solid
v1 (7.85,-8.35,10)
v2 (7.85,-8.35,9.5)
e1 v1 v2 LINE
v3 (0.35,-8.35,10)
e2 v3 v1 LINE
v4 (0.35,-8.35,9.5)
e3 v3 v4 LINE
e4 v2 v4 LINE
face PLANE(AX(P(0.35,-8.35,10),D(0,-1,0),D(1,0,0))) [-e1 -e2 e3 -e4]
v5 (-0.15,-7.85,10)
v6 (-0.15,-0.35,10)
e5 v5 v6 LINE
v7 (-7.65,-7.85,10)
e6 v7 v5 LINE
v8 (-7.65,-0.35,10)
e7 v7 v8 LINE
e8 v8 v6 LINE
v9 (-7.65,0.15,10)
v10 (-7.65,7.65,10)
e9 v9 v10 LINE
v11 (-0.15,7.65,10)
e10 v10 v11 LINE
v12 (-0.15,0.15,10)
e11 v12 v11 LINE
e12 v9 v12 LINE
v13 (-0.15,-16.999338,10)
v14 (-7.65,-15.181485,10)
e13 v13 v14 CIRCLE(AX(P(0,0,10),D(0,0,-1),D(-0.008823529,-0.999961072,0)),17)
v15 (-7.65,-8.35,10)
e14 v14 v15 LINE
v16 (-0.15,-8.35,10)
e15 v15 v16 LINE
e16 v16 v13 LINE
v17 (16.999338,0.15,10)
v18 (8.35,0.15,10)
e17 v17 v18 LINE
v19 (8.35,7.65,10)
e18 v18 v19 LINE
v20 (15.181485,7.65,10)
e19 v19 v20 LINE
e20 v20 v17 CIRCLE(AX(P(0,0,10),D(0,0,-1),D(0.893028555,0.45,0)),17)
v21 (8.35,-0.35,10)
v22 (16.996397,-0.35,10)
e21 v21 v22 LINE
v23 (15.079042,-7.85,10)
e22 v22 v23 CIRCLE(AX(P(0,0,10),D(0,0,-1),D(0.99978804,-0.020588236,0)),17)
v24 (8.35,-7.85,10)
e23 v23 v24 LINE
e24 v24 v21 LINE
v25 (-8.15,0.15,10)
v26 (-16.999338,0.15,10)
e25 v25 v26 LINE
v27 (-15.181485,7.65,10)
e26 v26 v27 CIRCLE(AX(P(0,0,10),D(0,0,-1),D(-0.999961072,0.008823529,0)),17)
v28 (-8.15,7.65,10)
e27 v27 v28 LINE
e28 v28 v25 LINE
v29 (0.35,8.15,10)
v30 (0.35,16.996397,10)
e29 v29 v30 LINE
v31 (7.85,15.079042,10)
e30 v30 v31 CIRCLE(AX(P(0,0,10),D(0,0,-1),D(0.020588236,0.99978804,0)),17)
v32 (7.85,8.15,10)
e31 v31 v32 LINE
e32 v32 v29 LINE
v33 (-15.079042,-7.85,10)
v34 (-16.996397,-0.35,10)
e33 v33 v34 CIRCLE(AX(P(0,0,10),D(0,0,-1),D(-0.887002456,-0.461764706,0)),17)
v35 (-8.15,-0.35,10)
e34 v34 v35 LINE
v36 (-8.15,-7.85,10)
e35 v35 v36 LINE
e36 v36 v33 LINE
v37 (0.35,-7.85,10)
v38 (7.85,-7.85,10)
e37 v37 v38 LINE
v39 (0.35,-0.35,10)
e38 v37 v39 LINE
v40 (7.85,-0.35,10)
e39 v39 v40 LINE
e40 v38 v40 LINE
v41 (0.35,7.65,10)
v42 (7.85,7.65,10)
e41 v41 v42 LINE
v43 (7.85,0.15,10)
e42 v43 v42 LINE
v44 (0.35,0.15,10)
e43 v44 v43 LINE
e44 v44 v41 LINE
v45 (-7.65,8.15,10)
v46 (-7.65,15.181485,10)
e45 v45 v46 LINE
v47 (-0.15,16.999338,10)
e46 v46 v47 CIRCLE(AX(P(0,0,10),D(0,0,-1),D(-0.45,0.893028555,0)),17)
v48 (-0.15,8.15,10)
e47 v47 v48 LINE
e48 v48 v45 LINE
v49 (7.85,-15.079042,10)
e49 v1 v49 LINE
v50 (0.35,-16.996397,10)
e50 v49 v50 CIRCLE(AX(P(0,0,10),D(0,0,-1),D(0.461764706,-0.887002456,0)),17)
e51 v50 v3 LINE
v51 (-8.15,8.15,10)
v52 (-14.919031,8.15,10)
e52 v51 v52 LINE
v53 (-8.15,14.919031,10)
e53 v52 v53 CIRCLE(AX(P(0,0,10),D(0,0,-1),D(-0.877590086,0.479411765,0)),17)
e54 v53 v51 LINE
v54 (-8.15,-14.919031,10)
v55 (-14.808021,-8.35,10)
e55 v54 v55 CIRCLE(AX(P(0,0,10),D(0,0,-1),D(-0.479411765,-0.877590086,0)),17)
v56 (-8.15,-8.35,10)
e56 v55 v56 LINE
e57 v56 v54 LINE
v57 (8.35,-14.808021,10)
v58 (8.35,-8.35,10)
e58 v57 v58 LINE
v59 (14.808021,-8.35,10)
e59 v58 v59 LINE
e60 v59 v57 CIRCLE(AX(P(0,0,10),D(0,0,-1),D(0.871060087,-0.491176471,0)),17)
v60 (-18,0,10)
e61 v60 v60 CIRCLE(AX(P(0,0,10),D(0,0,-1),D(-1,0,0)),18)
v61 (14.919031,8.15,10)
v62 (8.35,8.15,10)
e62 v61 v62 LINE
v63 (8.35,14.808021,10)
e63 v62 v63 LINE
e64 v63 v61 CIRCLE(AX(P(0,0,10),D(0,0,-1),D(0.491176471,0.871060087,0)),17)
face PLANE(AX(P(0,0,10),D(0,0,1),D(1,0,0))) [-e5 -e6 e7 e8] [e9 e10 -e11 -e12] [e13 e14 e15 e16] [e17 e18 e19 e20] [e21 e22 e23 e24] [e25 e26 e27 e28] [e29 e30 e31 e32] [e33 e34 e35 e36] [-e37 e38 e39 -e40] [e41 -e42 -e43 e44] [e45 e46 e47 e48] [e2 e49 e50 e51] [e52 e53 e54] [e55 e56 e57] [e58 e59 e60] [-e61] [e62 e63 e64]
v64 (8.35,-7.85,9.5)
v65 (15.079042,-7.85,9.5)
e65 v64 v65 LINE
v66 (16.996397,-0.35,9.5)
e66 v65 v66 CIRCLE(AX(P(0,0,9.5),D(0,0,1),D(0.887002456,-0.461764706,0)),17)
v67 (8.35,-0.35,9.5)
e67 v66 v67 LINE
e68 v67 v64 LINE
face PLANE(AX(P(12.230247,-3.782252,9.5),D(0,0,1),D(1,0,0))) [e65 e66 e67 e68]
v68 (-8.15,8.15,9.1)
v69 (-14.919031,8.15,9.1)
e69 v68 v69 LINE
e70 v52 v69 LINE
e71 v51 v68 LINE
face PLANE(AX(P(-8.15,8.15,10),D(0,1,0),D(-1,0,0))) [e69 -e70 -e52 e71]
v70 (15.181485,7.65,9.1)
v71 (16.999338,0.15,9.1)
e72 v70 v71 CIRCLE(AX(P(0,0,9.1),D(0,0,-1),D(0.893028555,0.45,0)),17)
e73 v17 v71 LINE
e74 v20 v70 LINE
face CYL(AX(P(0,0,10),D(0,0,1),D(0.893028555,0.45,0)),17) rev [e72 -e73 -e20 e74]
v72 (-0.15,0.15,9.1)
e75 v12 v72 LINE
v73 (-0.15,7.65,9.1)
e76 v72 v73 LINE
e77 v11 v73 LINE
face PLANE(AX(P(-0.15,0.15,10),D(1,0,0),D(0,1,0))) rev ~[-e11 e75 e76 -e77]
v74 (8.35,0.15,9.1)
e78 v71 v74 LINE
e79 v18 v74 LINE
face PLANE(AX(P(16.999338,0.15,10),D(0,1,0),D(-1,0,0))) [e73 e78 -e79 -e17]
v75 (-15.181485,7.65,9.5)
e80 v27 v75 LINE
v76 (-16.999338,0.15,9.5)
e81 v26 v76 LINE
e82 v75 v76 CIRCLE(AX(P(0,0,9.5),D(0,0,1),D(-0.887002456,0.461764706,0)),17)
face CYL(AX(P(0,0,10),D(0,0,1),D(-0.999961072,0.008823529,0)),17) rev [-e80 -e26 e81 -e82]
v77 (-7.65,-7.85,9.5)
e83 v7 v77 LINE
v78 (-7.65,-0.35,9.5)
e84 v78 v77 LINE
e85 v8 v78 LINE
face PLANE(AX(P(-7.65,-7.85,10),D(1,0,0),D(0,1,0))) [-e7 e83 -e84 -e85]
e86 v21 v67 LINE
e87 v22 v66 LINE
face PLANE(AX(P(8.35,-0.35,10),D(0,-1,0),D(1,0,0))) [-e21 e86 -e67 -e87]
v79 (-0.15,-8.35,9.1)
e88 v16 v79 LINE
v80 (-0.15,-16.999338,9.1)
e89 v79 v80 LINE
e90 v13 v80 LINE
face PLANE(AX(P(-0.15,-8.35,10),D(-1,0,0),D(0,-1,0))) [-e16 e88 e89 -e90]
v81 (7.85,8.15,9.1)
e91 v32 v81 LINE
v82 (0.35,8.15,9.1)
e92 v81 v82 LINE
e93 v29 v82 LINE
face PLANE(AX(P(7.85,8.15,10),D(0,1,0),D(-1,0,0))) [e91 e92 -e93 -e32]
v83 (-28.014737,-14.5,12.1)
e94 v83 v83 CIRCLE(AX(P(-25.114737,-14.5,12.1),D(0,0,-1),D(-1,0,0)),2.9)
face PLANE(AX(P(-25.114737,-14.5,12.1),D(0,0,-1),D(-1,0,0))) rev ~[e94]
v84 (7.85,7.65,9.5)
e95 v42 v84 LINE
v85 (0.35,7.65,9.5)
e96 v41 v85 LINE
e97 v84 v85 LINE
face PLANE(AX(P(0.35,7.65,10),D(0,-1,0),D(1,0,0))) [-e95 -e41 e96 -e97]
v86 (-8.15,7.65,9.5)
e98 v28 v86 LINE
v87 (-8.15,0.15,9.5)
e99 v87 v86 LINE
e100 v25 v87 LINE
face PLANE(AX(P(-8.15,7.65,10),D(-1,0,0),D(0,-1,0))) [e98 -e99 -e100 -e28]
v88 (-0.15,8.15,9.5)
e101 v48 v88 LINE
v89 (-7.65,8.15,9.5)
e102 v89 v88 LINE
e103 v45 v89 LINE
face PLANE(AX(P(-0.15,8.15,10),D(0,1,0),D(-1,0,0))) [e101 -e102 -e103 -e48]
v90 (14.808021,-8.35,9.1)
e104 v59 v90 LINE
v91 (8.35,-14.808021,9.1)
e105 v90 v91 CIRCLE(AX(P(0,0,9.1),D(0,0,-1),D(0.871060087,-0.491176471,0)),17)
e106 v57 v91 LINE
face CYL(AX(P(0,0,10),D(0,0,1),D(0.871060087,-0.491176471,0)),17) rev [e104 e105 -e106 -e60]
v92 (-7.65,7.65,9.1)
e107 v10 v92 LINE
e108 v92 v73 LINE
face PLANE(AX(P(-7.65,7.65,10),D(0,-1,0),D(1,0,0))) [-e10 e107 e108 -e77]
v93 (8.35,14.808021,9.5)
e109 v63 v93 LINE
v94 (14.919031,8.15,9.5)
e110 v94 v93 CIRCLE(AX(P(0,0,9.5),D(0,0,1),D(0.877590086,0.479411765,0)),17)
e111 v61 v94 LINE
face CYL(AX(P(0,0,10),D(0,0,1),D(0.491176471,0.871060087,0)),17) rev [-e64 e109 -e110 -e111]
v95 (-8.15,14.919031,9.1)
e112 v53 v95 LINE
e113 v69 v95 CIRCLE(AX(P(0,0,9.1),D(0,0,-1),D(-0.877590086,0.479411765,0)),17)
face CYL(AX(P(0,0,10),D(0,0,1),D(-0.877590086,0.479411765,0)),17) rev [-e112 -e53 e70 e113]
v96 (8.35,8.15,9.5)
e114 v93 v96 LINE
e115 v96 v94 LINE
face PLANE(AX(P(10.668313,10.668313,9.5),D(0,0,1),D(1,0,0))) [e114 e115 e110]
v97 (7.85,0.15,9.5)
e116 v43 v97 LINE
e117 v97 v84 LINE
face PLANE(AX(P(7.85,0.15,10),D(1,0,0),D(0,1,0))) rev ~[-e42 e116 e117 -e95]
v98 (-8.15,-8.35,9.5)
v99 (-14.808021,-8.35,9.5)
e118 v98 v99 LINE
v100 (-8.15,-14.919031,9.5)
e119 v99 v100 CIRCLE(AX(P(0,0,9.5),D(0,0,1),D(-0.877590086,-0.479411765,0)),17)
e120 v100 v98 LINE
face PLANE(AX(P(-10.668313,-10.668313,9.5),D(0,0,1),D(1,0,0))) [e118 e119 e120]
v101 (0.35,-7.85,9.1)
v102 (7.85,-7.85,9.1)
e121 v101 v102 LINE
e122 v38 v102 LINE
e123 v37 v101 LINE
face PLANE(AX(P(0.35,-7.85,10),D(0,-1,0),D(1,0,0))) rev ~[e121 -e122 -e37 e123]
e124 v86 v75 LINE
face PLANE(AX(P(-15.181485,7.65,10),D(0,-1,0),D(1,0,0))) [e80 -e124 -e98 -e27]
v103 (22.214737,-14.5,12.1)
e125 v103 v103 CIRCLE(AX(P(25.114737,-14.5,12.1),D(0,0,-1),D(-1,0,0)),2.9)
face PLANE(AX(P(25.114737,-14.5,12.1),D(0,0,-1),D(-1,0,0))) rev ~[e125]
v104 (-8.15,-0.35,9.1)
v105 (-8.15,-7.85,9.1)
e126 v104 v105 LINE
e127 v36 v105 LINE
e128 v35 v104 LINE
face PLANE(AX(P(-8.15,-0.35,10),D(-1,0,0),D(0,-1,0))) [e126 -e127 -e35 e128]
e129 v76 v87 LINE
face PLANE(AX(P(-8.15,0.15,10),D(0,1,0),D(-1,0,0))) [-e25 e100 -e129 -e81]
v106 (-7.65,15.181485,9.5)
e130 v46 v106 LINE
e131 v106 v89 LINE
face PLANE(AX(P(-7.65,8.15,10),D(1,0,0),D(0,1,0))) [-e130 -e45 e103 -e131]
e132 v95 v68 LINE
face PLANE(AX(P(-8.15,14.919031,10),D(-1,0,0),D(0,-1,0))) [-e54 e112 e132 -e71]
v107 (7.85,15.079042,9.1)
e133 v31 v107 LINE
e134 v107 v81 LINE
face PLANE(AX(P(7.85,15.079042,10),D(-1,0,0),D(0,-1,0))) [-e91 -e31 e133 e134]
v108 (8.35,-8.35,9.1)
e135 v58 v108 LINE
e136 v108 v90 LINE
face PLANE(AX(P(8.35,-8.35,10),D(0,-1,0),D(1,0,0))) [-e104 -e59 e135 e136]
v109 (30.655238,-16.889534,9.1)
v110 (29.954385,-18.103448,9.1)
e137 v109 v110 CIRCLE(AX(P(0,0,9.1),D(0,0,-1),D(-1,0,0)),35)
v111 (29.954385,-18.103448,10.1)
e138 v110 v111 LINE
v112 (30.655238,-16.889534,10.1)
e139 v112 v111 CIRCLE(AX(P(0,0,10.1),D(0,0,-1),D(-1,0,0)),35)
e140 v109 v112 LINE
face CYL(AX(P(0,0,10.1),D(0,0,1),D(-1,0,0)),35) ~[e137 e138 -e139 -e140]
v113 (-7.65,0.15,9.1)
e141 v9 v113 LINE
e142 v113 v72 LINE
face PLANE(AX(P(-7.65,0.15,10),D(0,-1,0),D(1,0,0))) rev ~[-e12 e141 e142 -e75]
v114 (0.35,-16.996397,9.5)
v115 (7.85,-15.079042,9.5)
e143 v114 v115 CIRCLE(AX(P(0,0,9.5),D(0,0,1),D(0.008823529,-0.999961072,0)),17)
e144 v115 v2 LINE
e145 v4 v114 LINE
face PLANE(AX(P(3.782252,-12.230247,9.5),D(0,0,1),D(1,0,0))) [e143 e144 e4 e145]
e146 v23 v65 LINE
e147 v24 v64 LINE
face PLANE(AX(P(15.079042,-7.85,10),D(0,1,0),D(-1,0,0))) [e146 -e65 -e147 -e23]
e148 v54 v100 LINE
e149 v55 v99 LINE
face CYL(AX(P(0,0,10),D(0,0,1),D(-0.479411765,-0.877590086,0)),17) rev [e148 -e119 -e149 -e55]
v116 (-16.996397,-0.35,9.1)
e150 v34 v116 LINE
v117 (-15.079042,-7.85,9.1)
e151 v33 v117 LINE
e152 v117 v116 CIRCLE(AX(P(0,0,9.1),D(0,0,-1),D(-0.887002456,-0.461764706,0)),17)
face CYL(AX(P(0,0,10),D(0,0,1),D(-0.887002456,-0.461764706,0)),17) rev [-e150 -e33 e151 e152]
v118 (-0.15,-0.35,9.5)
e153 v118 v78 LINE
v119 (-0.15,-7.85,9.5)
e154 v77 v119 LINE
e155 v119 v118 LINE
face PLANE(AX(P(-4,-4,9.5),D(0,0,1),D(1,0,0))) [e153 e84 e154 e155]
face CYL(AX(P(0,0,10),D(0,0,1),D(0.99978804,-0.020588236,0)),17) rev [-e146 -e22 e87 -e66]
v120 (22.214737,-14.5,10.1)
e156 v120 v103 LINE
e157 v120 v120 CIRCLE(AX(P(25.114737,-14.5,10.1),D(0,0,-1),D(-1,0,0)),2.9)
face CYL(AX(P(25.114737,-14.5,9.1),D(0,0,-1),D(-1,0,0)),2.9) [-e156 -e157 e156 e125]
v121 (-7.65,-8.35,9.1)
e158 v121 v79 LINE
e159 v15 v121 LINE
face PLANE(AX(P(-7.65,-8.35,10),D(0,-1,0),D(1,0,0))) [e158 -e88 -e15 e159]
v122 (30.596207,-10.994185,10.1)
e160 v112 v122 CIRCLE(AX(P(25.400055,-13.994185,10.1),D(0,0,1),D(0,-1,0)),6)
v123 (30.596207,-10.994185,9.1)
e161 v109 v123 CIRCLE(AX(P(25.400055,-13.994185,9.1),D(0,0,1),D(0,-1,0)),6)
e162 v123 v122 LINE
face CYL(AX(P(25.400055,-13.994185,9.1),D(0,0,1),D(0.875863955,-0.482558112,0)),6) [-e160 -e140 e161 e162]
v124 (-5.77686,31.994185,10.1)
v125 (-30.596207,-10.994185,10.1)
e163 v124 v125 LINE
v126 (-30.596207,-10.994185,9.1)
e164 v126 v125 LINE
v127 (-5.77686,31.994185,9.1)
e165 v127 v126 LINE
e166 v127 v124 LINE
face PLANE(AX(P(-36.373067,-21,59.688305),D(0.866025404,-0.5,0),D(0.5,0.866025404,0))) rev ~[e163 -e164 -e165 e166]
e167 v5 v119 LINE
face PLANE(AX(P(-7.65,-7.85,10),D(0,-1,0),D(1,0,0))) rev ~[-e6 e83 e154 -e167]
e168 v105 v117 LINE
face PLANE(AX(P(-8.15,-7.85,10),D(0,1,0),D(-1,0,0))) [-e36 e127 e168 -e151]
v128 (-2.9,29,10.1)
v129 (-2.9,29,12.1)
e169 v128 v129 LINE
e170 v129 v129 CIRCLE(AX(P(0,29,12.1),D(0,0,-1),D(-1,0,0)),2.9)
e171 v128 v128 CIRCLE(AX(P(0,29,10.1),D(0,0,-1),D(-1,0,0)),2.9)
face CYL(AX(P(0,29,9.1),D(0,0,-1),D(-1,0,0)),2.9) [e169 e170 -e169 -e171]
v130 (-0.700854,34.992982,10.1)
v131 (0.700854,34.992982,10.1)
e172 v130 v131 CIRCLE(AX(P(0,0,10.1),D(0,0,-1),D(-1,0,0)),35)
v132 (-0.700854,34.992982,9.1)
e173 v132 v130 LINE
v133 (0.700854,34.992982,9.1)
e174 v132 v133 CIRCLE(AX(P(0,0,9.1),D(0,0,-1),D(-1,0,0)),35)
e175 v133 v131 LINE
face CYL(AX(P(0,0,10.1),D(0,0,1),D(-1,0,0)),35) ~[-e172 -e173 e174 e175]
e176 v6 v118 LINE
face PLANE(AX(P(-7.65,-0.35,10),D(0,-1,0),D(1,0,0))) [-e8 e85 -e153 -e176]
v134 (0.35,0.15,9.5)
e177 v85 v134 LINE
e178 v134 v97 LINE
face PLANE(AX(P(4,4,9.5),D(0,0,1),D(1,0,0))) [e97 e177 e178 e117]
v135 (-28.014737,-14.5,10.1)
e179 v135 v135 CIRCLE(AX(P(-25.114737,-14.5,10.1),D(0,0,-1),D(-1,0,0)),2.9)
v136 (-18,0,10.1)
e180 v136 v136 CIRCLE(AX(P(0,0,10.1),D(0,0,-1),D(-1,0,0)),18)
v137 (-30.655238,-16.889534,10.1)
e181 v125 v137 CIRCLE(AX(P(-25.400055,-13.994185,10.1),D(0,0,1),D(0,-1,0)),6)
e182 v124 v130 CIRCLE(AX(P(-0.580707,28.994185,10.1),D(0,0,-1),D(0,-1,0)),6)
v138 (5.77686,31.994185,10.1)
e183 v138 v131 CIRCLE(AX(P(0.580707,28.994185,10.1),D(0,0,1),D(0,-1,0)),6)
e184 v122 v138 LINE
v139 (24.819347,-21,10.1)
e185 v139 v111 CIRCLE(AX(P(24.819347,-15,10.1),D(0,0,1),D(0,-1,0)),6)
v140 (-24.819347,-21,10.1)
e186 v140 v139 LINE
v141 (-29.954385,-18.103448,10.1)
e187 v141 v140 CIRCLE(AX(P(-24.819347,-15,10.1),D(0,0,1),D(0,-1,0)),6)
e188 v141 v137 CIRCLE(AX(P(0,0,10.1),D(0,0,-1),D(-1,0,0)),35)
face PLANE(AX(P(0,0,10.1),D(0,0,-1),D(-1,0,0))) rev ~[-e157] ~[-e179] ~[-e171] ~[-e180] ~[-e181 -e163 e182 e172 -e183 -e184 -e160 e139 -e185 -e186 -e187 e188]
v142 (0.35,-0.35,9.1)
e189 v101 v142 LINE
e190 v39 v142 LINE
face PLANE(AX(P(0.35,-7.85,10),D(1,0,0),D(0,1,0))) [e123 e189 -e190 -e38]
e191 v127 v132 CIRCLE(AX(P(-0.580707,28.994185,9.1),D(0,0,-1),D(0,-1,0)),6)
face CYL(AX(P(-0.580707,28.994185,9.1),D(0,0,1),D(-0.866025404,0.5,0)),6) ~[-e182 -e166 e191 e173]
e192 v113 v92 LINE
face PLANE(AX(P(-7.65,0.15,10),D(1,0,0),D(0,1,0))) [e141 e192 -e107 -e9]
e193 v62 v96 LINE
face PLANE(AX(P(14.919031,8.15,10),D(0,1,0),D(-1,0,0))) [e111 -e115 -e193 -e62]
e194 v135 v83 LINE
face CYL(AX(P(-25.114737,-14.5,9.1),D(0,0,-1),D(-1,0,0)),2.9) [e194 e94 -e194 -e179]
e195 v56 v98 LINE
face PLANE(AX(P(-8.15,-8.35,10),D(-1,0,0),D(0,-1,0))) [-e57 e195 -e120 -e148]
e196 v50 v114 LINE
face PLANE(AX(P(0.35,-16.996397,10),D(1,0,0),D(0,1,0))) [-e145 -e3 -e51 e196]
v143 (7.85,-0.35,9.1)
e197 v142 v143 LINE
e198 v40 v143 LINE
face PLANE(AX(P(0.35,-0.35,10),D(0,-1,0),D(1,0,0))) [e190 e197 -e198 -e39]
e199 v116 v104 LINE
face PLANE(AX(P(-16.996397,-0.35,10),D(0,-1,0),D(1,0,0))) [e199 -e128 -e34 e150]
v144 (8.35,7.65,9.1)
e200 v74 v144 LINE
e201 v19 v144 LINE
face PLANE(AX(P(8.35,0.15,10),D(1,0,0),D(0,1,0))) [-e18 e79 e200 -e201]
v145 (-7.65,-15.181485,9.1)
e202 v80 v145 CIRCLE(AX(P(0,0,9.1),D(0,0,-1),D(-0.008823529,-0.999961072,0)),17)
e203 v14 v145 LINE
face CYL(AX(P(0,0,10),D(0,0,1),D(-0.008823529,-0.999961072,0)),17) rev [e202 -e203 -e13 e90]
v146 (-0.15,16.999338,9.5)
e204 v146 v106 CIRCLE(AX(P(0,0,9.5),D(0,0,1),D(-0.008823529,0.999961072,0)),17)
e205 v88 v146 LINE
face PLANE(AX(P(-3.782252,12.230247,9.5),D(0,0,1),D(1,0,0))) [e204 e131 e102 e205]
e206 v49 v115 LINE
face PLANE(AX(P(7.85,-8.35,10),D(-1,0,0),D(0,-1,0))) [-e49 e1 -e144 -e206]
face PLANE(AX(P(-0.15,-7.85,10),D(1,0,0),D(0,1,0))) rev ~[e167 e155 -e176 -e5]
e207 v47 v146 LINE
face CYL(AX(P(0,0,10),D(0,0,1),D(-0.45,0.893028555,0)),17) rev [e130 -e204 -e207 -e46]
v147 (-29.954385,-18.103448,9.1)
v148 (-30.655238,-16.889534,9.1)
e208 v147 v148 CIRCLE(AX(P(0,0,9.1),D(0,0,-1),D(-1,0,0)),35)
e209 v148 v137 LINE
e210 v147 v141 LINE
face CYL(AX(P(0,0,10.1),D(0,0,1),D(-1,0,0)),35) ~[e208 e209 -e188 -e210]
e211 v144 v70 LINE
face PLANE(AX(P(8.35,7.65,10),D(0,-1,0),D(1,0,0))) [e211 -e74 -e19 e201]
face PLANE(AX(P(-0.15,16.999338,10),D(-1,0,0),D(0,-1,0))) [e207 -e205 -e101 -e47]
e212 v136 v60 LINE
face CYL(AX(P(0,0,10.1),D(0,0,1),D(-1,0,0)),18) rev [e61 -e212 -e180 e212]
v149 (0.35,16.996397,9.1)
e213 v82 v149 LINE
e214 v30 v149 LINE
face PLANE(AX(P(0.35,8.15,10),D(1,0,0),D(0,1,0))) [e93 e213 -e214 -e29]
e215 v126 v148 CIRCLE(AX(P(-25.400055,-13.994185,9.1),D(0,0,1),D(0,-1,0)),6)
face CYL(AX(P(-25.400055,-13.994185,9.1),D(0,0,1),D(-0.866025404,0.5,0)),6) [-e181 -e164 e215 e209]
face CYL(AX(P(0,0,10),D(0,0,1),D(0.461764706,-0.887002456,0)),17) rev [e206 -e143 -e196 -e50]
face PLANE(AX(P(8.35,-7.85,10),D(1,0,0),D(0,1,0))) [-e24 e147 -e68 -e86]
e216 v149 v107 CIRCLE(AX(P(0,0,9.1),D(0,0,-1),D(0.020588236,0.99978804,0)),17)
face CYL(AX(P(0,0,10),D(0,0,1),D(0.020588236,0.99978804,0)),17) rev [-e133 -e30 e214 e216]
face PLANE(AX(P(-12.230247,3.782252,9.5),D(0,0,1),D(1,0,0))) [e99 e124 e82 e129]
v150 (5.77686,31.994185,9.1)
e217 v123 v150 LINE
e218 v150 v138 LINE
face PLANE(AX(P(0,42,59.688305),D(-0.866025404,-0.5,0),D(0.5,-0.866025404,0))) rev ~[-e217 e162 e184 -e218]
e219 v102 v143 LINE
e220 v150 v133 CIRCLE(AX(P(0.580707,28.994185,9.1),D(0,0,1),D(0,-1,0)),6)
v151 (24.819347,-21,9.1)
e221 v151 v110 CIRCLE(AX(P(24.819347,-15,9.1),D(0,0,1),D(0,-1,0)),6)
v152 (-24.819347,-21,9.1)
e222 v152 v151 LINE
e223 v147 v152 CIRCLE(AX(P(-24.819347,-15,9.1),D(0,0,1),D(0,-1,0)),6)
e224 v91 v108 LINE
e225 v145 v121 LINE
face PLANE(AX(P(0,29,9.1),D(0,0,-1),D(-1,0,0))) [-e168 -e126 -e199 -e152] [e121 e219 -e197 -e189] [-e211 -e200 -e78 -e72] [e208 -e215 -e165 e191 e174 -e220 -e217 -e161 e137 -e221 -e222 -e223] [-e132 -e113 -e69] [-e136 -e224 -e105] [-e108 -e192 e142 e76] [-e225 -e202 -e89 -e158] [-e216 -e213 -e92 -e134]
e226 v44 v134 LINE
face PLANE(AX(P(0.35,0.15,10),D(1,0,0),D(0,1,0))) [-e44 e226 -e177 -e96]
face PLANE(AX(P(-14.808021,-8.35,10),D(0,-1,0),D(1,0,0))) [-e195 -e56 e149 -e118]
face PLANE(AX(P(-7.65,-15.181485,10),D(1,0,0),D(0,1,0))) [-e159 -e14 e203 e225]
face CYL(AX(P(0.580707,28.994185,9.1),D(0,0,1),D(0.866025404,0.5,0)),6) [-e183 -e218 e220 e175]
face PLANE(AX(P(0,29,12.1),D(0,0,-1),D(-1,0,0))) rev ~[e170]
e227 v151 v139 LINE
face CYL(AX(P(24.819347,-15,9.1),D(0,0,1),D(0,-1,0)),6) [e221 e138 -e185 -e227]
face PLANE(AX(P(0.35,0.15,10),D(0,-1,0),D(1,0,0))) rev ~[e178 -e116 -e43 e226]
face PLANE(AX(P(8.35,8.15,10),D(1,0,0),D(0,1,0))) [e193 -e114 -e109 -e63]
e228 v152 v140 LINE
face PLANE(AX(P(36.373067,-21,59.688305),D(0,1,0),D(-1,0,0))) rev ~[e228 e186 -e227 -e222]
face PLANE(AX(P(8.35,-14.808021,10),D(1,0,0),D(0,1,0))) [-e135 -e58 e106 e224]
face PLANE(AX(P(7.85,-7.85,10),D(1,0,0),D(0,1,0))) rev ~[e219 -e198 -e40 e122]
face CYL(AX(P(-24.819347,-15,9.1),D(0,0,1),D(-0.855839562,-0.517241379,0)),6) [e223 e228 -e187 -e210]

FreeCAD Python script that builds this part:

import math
import FreeCAD as App
import Part
import Sketcher

V = App.Vector
Q = App.Units.Quantity


def edges_at(feature, points):
    """Names of the edges that pass closest to the given points."""
    edges = feature.Shape.Edges
    near = lambda p: min(range(len(edges)), key=lambda i: edges[i].distToShape(Part.Vertex(*p))[0])
    return sorted({f"Edge{near(p) + 1}" for p in points})


def add_polygon(sketch, points):
    """Adds a closed chain of lines whose ends are joined by coincident constraints."""
    first, n = sketch.GeometryCount, len(points)
    for a, b in zip(points, points[1:] + points[:1]):
        sketch.addGeometry(Part.LineSegment(App.Vector(*a, 0), App.Vector(*b, 0)), False)
    for i in range(n):
        sketch.addConstraint(Sketcher.Constraint("Coincident", first + i, 2, first + (i + 1) % n, 1))

doc = App.newDocument("Part")
params = doc.addObject("Spreadsheet::Sheet", "Params")
for row, (alias, value) in enumerate([
    ("sketch1_diameter", "36 mm"),
    ("sketch1_radius", "17 mm"),
    ("sketch1_width", "7.5 mm"),
    ("pad1_length", "0.9 mm"),
    ("sketch2_radius", "17 mm"),
    ("sketch2_width", "7.7 mm"),
    ("pad2_length", "0.4 mm"),
    ("sketch3_diameter", "70 mm"),
    ("sketch3_diameter2", "36 mm"),
    ("pad3_length", "1 mm"),
    ("sketch4_diameter", "5.8 mm"),
    ("pad4_length", "3 mm"),
    ("fillet_radius", "6 mm"),
], start=1):
    params.set(f"A{row}", alias)
    params.set(f"B{row}", "=" + value)
    params.setAlias(f"B{row}", alias)

body = doc.addObject("PartDesign::Body", "Body")

sketch1 = body.newObject("Sketcher::SketchObject", "Sketch")
sketch1.AttachmentSupport = (doc.getObject("XY_Plane"), [""])
sketch1.MapMode = "FlatFace"
sketch1.AttachmentOffset = App.Placement(V(0, 0, 10), App.Rotation())
sketch1.addGeometry(Part.Circle(V(0, 0, 0), V(0, 0, 1), 18), False)
sketch1.addGeometry(Part.LineSegment(V(-14.808021, -8.35, 0), V(-8.15, -8.35, 0)), False)
sketch1.addGeometry(Part.LineSegment(V(-8.15, -8.35, 0), V(-8.15, -14.919031, 0)), False)
sketch1.addGeometry(Part.ArcOfCircle(Part.Circle(V(0, 0, 0), V(0, 0, 1), 17), math.radians(-150.582063), math.radians(-118.64699)), False)
sketch1.addGeometry(Part.LineSegment(V(-7.65, -8.35, 0), V(-0.15, -8.35, 0)), False)
sketch1.addGeometry(Part.LineSegment(V(-0.15, -8.35, 0), V(-0.15, -16.999338, 0)), False)
sketch1.addGeometry(Part.ArcOfCircle(Part.Circle(V(0, 0, 0), V(0, 0, 1), 17), math.radians(-116.743684), math.radians(-90.505558)), False)
sketch1.addGeometry(Part.LineSegment(V(-7.65, -15.181485, 0), V(-7.65, -8.35, 0)), False)
sketch1.addGeometry(Part.LineSegment(V(-8.15, -0.35, 0), V(-8.15, -7.85, 0)), False)
sketch1.addGeometry(Part.LineSegment(V(-8.15, -7.85, 0), V(-15.079042, -7.85, 0)), False)
sketch1.addGeometry(Part.ArcOfCircle(Part.Circle(V(0, 0, 0), V(0, 0, 1), 17), math.radians(-178.820298), math.radians(-152.498961)), False)
sketch1.addGeometry(Part.LineSegment(V(-16.996397, -0.35, 0), V(-8.15, -0.35, 0)), False)
add_polygon(sketch1, [(-0.15, -7.85), (-7.65, -7.85), (-7.65, -0.35), (-0.15, -0.35)])
sketch1.addGeometry(Part.LineSegment(V(0.35, -8.35, 0), V(7.85, -8.35, 0)), False)
sketch1.addGeometry(Part.LineSegment(V(7.85, -8.35, 0), V(7.85, -15.079042, 0)), False)
sketch1.addGeometry(Part.ArcOfCircle(Part.Circle(V(0, 0, 0), V(0, 0, 1), 17), math.radians(-88.820298), math.radians(-62.498961)), False)
sketch1.addGeometry(Part.LineSegment(V(0.35, -16.996397, 0), V(0.35, -8.35, 0)), False)
sketch1.addGeometry(Part.LineSegment(V(8.35, -14.808021, 0), V(8.35, -8.35, 0)), False)
sketch1.addGeometry(Part.LineSegment(V(8.35, -8.35, 0), V(14.808021, -8.35, 0)), False)
sketch1.addGeometry(Part.ArcOfCircle(Part.Circle(V(0, 0, 0), V(0, 0, 1), 17), math.radians(-60.582063), math.radians(-29.417937)), False)
add_polygon(sketch1, [(7.85, -7.85), (0.35, -7.85), (0.35, -0.35), (7.85, -0.35)])
sketch1.addGeometry(Part.LineSegment(V(8.35, -7.85, 0), V(8.35, -0.35, 0)), False)
sketch1.addGeometry(Part.LineSegment(V(8.35, -0.35, 0), V(16.996397, -0.35, 0)), False)
sketch1.addGeometry(Part.ArcOfCircle(Part.Circle(V(0, 0, 0), V(0, 0, 1), 17), math.radians(-27.501039), math.radians(-1.179702)), False)
sketch1.addGeometry(Part.LineSegment(V(15.079042, -7.85, 0), V(8.35, -7.85, 0)), False)
sketch1.addGeometry(Part.LineSegment(V(-8.15, 7.65, 0), V(-8.15, 0.15, 0)), False)
sketch1.addGeometry(Part.LineSegment(V(-8.15, 0.15, 0), V(-16.999338, 0.15, 0)), False)
sketch1.addGeometry(Part.ArcOfCircle(Part.Circle(V(0, 0, 0), V(0, 0, 1), 17), math.radians(153.256316), math.radians(179.494442)), False)
sketch1.addGeometry(Part.LineSegment(V(-15.181485, 7.65, 0), V(-8.15, 7.65, 0)), False)
add_polygon(sketch1, [(-0.15, 0.15), (-7.65, 0.15), (-7.65, 7.65), (-0.15, 7.65)])
sketch1.addGeometry(Part.LineSegment(V(-8.15, 14.919031, 0), V(-8.15, 8.15, 0)), False)
sketch1.addGeometry(Part.LineSegment(V(-8.15, 8.15, 0), V(-14.919031, 8.15, 0)), False)
sketch1.addGeometry(Part.ArcOfCircle(Part.Circle(V(0, 0, 0), V(0, 0, 1), 17), math.radians(118.64699), math.radians(151.35301)), False)
sketch1.addGeometry(Part.LineSegment(V(-0.15, 8.15, 0), V(-7.65, 8.15, 0)), False)
sketch1.addGeometry(Part.LineSegment(V(-7.65, 8.15, 0), V(-7.65, 15.181485, 0)), False)
sketch1.addGeometry(Part.ArcOfCircle(Part.Circle(V(0, 0, 0), V(0, 0, 1), 17), math.radians(90.505558), math.radians(116.743684)), False)
sketch1.addGeometry(Part.LineSegment(V(-0.15, 16.999338, 0), V(-0.15, 8.15, 0)), False)
add_polygon(sketch1, [(7.85, 0.15), (0.35, 0.15), (0.35, 7.65), (7.85, 7.65)])
sketch1.addGeometry(Part.LineSegment(V(8.35, 0.15, 0), V(8.35, 7.65, 0)), False)
sketch1.addGeometry(Part.LineSegment(V(8.35, 7.65, 0), V(15.181485, 7.65, 0)), False)
sketch1.addGeometry(Part.ArcOfCircle(Part.Circle(V(0, 0, 0), V(0, 0, 1), 17), math.radians(0.505558), math.radians(26.743684)), False)
sketch1.addGeometry(Part.LineSegment(V(16.999338, 0.15, 0), V(8.35, 0.15, 0)), False)
sketch1.addGeometry(Part.LineSegment(V(7.85, 8.15, 0), V(0.35, 8.15, 0)), False)
sketch1.addGeometry(Part.LineSegment(V(0.35, 8.15, 0), V(0.35, 16.996397, 0)), False)
sketch1.addGeometry(Part.ArcOfCircle(Part.Circle(V(0, 0, 0), V(0, 0, 1), 17), math.radians(62.498961), math.radians(88.820298)), False)
sketch1.addGeometry(Part.LineSegment(V(7.85, 15.079042, 0), V(7.85, 8.15, 0)), False)
sketch1.addGeometry(Part.LineSegment(V(14.919031, 8.15, 0), V(8.35, 8.15, 0)), False)
sketch1.addGeometry(Part.LineSegment(V(8.35, 8.15, 0), V(8.35, 14.808021, 0)), False)
sketch1.addGeometry(Part.ArcOfCircle(Part.Circle(V(0, 0, 0), V(0, 0, 1), 17), math.radians(28.64699), math.radians(60.582063)), False)
sketch1.addConstraint([
    Sketcher.Constraint("Coincident", 1, 2, 2, 1),
    Sketcher.Constraint("Coincident", 2, 2, 3, 2),
    Sketcher.Constraint("Coincident", 3, 1, 1, 1),
    Sketcher.Constraint("Coincident", 4, 2, 5, 1),
    Sketcher.Constraint("Coincident", 5, 2, 6, 2),
    Sketcher.Constraint("Coincident", 6, 1, 7, 1),
    Sketcher.Constraint("Coincident", 7, 2, 4, 1),
    Sketcher.Constraint("Coincident", 8, 2, 9, 1),
    Sketcher.Constraint("Coincident", 9, 2, 10, 2),
    Sketcher.Constraint("Coincident", 10, 1, 11, 1),
    Sketcher.Constraint("Coincident", 11, 2, 8, 1),
    Sketcher.Constraint("Coincident", 16, 2, 17, 1),
    Sketcher.Constraint("Coincident", 17, 2, 18, 2),
    Sketcher.Constraint("Coincident", 18, 1, 19, 1),
    Sketcher.Constraint("Coincident", 19, 2, 16, 1),
    Sketcher.Constraint("Coincident", 20, 2, 21, 1),
    Sketcher.Constraint("Coincident", 21, 2, 22, 2),
    Sketcher.Constraint("Coincident", 22, 1, 20, 1),
    Sketcher.Constraint("Coincident", 27, 2, 28, 1),
    Sketcher.Constraint("Coincident", 28, 2, 29, 2),
    Sketcher.Constraint("Coincident", 29, 1, 30, 1),
    Sketcher.Constraint("Coincident", 30, 2, 27, 1),
    Sketcher.Constraint("Coincident", 31, 2, 32, 1),
    Sketcher.Constraint("Coincident", 32, 2, 33, 2),
    Sketcher.Constraint("Coincident", 33, 1, 34, 1),
    Sketcher.Constraint("Coincident", 34, 2, 31, 1),
    Sketcher.Constraint("Coincident", 39, 2, 40, 1),
    Sketcher.Constraint("Coincident", 40, 2, 41, 2),
    Sketcher.Constraint("Coincident", 41, 1, 39, 1),
    Sketcher.Constraint("Coincident", 42, 2, 43, 1),
    Sketcher.Constraint("Coincident", 43, 2, 44, 2),
    Sketcher.Constraint("Coincident", 44, 1, 45, 1),
    Sketcher.Constraint("Coincident", 45, 2, 42, 1),
    Sketcher.Constraint("Coincident", 50, 2, 51, 1),
    Sketcher.Constraint("Coincident", 51, 2, 52, 2),
    Sketcher.Constraint("Coincident", 52, 1, 53, 1),
    Sketcher.Constraint("Coincident", 53, 2, 50, 1),
    Sketcher.Constraint("Coincident", 54, 2, 55, 1),
    Sketcher.Constraint("Coincident", 55, 2, 56, 2),
    Sketcher.Constraint("Coincident", 56, 1, 57, 1),
    Sketcher.Constraint("Coincident", 57, 2, 54, 1),
    Sketcher.Constraint("Coincident", 58, 2, 59, 1),
    Sketcher.Constraint("Coincident", 59, 2, 60, 2),
    Sketcher.Constraint("Coincident", 60, 1, 58, 1),
    Sketcher.Constraint("Horizontal", 1),
    Sketcher.Constraint("Vertical", 2),
    Sketcher.Constraint("Horizontal", 4),
    Sketcher.Constraint("Vertical", 5),
    Sketcher.Constraint("Vertical", 7),
    Sketcher.Constraint("Vertical", 8),
    Sketcher.Constraint("Horizontal", 9),
    Sketcher.Constraint("Horizontal", 11),
    Sketcher.Constraint("Horizontal", 12),
    Sketcher.Constraint("Vertical", 13),
    Sketcher.Constraint("Horizontal", 14),
    Sketcher.Constraint("Vertical", 15),
    Sketcher.Constraint("Horizontal", 16),
    Sketcher.Constraint("Vertical", 17),
    Sketcher.Constraint("Vertical", 19),
    Sketcher.Constraint("Vertical", 20),
    Sketcher.Constraint("Horizontal", 21),
    Sketcher.Constraint("Horizontal", 23),
    Sketcher.Constraint("Vertical", 24),
    Sketcher.Constraint("Horizontal", 25),
    Sketcher.Constraint("Vertical", 26),
    Sketcher.Constraint("Vertical", 27),
    Sketcher.Constraint("Horizontal", 28),
    Sketcher.Constraint("Horizontal", 30),
    Sketcher.Constraint("Vertical", 31),
    Sketcher.Constraint("Horizontal", 32),
    Sketcher.Constraint("Horizontal", 34),
    Sketcher.Constraint("Horizontal", 35),
    Sketcher.Constraint("Vertical", 36),
    Sketcher.Constraint("Horizontal", 37),
    Sketcher.Constraint("Vertical", 38),
    Sketcher.Constraint("Vertical", 39),
    Sketcher.Constraint("Horizontal", 40),
    Sketcher.Constraint("Horizontal", 42),
    Sketcher.Constraint("Vertical", 43),
    Sketcher.Constraint("Vertical", 45),
    Sketcher.Constraint("Horizontal", 46),
    Sketcher.Constraint("Vertical", 47),
    Sketcher.Constraint("Horizontal", 48),
    Sketcher.Constraint("Vertical", 49),
    Sketcher.Constraint("Vertical", 50),
    Sketcher.Constraint("Horizontal", 51),
    Sketcher.Constraint("Horizontal", 53),
    Sketcher.Constraint("Horizontal", 54),
    Sketcher.Constraint("Vertical", 55),
    Sketcher.Constraint("Vertical", 57),
    Sketcher.Constraint("Horizontal", 58),
    Sketcher.Constraint("Vertical", 59),
    Sketcher.Constraint("Coincident", 0, 3, -1, 1),
    Sketcher.Constraint("Coincident", 3, 3, -1, 1),
    Sketcher.Constraint("Coincident", 6, 3, -1, 1),
    Sketcher.Constraint("Coincident", 10, 3, -1, 1),
    Sketcher.Constraint("Coincident", 18, 3, -1, 1),
    Sketcher.Constraint("Coincident", 22, 3, -1, 1),
    Sketcher.Constraint("Coincident", 29, 3, -1, 1),
    Sketcher.Constraint("Coincident", 33, 3, -1, 1),
    Sketcher.Constraint("Coincident", 41, 3, -1, 1),
    Sketcher.Constraint("Coincident", 44, 3, -1, 1),
    Sketcher.Constraint("Coincident", 52, 3, -1, 1),
    Sketcher.Constraint("Coincident", 56, 3, -1, 1),
    Sketcher.Constraint("Coincident", 60, 3, -1, 1),
    Sketcher.Constraint("Equal", 3, 6),
    Sketcher.Constraint("Equal", 6, 10),
    Sketcher.Constraint("Equal", 10, 18),
    Sketcher.Constraint("Equal", 18, 22),
    Sketcher.Constraint("Equal", 22, 29),
    Sketcher.Constraint("Equal", 29, 33),
    Sketcher.Constraint("Equal", 33, 41),
    Sketcher.Constraint("Equal", 41, 44),
    Sketcher.Constraint("Equal", 44, 52),
    Sketcher.Constraint("Equal", 52, 56),
    Sketcher.Constraint("Equal", 56, 60),
    Sketcher.Constraint("Horizontal", 3, 1, 4, 2),
    Sketcher.Constraint("Horizontal", 9, 2, 12, 2),
    Sketcher.Constraint("Horizontal", 11, 2, 13, 2),
    Sketcher.Constraint("Horizontal", 7, 2, 16, 2),
    Sketcher.Constraint("Horizontal", 19, 2, 20, 2),
    Sketcher.Constraint("Horizontal", 15, 2, 23, 2),
    Sketcher.Constraint("Horizontal", 14, 2, 24, 2),
    Sketcher.Constraint("Horizontal", 25, 2, 27, 2),
    Sketcher.Constraint("Horizontal", 26, 2, 29, 1),
    Sketcher.Constraint("Horizontal", 32, 2, 35, 2),
    Sketcher.Constraint("Horizontal", 34, 2, 36, 2),
    Sketcher.Constraint("Horizontal", 40, 2, 42, 2),
    Sketcher.Constraint("Horizontal", 38, 2, 46, 2),
    Sketcher.Constraint("Horizontal", 37, 2, 47, 2),
    Sketcher.Constraint("Horizontal", 48, 2, 50, 2),
    Sketcher.Constraint("Horizontal", 49, 2, 52, 1),
    Sketcher.Constraint("Horizontal", 45, 2, 54, 2),
    Sketcher.Constraint("Horizontal", 57, 2, 58, 2),
    Sketcher.Constraint("Vertical", 2, 2, 8, 2),
    Sketcher.Constraint("Vertical", 7, 2, 12, 2),
    Sketcher.Constraint("Vertical", 5, 2, 14, 2),
    Sketcher.Constraint("Vertical", 19, 2, 23, 2),
    Sketcher.Constraint("Vertical", 17, 2, 25, 2),
    Sketcher.Constraint("Vertical", 22, 1, 27, 2),
    Sketcher.Constraint("Vertical", 11, 2, 31, 2),
    Sketcher.Constraint("Vertical", 13, 2, 35, 2),
    Sketcher.Constraint("Vertical", 15, 2, 37, 2),
    Sketcher.Constraint("Vertical", 34, 2, 39, 2),
    Sketcher.Constraint("Vertical", 36, 2, 42, 2),
    Sketcher.Constraint("Vertical", 38, 2, 44, 1),
    Sketcher.Constraint("Vertical", 24, 2, 46, 2),
    Sketcher.Constraint("Vertical", 26, 2, 48, 2),
    Sketcher.Constraint("Vertical", 30, 2, 50, 2),
    Sketcher.Constraint("Vertical", 47, 2, 54, 2),
    Sketcher.Constraint("Vertical", 49, 2, 56, 1),
    Sketcher.Constraint("Vertical", 53, 2, 58, 2),
    Sketcher.Constraint("Equal", 14, 16),
    Sketcher.Constraint("Equal", 58, 2),
    Sketcher.Constraint("Equal", 53, 5),
    Sketcher.Constraint("Equal", 51, 7),
    Sketcher.Constraint("Equal", 54, 8),
    Sketcher.Constraint("Equal", 30, 17),
    Sketcher.Constraint("Equal", 27, 31),
    Sketcher.Constraint("Diameter", 0, Q("36 mm")),
    Sketcher.Constraint("Radius", 3, Q("17 mm")),
    Sketcher.Constraint("DistanceX", 4, 1, 4, 2, Q("7.5 mm")),
    Sketcher.Constraint("DistanceX", 1, 2, -1, 1, Q("8.15 mm")),
    Sketcher.Constraint("DistanceY", 1, 2, -1, 1, Q("8.35 mm")),
    Sketcher.Constraint("DistanceX", 4, 2, -1, 1, Q("0.15 mm")),
    Sketcher.Constraint("DistanceY", 8, 2, -1, 1, Q("7.85 mm")),
])
sketch1.setExpression("Constraints[175]", "Params.sketch1_diameter")
sketch1.setExpression("Constraints[176]", "Params.sketch1_radius")
sketch1.setExpression("Constraints[177]", "Params.sketch1_width")
pad1 = body.newObject("PartDesign::Pad", "Pad")
pad1.Profile = sketch1
pad1.setExpression("Length", "Params.pad1_length")
pad1.Reversed = True

sketch2 = body.newObject("Sketcher::SketchObject", "Sketch001")
sketch2.AttachmentSupport = (doc.getObject("XY_Plane"), [""])
sketch2.MapMode = "FlatFace"
sketch2.AttachmentOffset = App.Placement(V(0, 0, 9.5), App.Rotation())
sketch2.addGeometry(Part.ArcOfCircle(Part.Circle(V(0, 0, 0), V(0, 0, 1), 17), math.radians(90.505558), math.radians(117.501039)), False)
sketch2.addGeometry(Part.LineSegment(V(-7.85, 15.079042, 0), V(-7.85, 8.15, 0)), False)
sketch2.addGeometry(Part.LineSegment(V(-7.85, 8.15, 0), V(-0.15, 8.15, 0)), False)
sketch2.addGeometry(Part.LineSegment(V(-0.15, 8.15, 0), V(-0.15, 16.999338, 0)), False)
add_polygon(sketch2, [(0.15, 7.85), (0.15, 0.15), (7.85, 0.15), (7.85, 7.85)])
add_polygon(sketch2, [(-7.85, -0.15), (-7.85, -7.85), (-0.15, -7.85), (-0.15, -0.15)])
sketch2.addGeometry(Part.LineSegment(V(8.15, 8.15, 0), V(14.919031, 8.15, 0)), False)
sketch2.addGeometry(Part.ArcOfCircle(Part.Circle(V(0, 0, 0), V(0, 0, 1), 17), math.radians(28.64699), math.radians(61.35301)), False)
sketch2.addGeometry(Part.LineSegment(V(8.15, 14.919031, 0), V(8.15, 8.15, 0)), False)
sketch2.addGeometry(Part.ArcOfCircle(Part.Circle(V(0, 0, 0), V(0, 0, 1), 17), math.radians(152.498961), math.radians(179.494442)), False)
sketch2.addGeometry(Part.LineSegment(V(-16.999338, 0.15, 0), V(-8.15, 0.15, 0)), False)
sketch2.addGeometry(Part.LineSegment(V(-8.15, 0.15, 0), V(-8.15, 7.85, 0)), False)
sketch2.addGeometry(Part.LineSegment(V(-8.15, 7.85, 0), V(-15.079042, 7.85, 0)), False)
sketch2.addGeometry(Part.LineSegment(V(0.15, -8.15, 0), V(0.15, -16.999338, 0)), False)
sketch2.addGeometry(Part.ArcOfCircle(Part.Circle(V(0, 0, 0), V(0, 0, 1), 17), math.radians(-89.494442), math.radians(-62.498961)), False)
sketch2.addGeometry(Part.LineSegment(V(7.85, -15.079042, 0), V(7.85, -8.15, 0)), False)
sketch2.addGeometry(Part.LineSegment(V(7.85, -8.15, 0), V(0.15, -8.15, 0)), False)
sketch2.addGeometry(Part.ArcOfCircle(Part.Circle(V(0, 0, 0), V(0, 0, 1), 17), math.radians(-151.35301), math.radians(-118.64699)), False)
sketch2.addGeometry(Part.LineSegment(V(-8.15, -14.919031, 0), V(-8.15, -8.15, 0)), False)
sketch2.addGeometry(Part.LineSegment(V(-8.15, -8.15, 0), V(-14.919031, -8.15, 0)), False)
sketch2.addGeometry(Part.LineSegment(V(8.15, -7.85, 0), V(15.079042, -7.85, 0)), False)
sketch2.addGeometry(Part.ArcOfCircle(Part.Circle(V(0, 0, 0), V(0, 0, 1), 17), math.radians(-27.501039), math.radians(-0.505558)), False)
sketch2.addGeometry(Part.LineSegment(V(16.999338, -0.15, 0), V(8.15, -0.15, 0)), False)
sketch2.addGeometry(Part.LineSegment(V(8.15, -0.15, 0), V(8.15, -7.85, 0)), False)
sketch2.addConstraint([
    Sketcher.Constraint("Coincident", 0, 2, 1, 1),
    Sketcher.Constraint("Coincident", 1, 2, 2, 1),
    Sketcher.Constraint("Coincident", 2, 2, 3, 1),
    Sketcher.Constraint("Coincident", 3, 2, 0, 1),
    Sketcher.Constraint("Coincident", 12, 2, 13, 1),
    Sketcher.Constraint("Coincident", 13, 2, 14, 1),
    Sketcher.Constraint("Coincident", 14, 2, 12, 1),
    Sketcher.Constraint("Coincident", 15, 2, 16, 1),
    Sketcher.Constraint("Coincident", 16, 2, 17, 1),
    Sketcher.Constraint("Coincident", 17, 2, 18, 1),
    Sketcher.Constraint("Coincident", 18, 2, 15, 1),
    Sketcher.Constraint("Coincident", 19, 2, 20, 1),
    Sketcher.Constraint("Coincident", 20, 2, 21, 1),
    Sketcher.Constraint("Coincident", 21, 2, 22, 1),
    Sketcher.Constraint("Coincident", 22, 2, 19, 1),
    Sketcher.Constraint("Coincident", 23, 2, 24, 1),
    Sketcher.Constraint("Coincident", 24, 2, 25, 1),
    Sketcher.Constraint("Coincident", 25, 2, 23, 1),
    Sketcher.Constraint("Coincident", 26, 2, 27, 1),
    Sketcher.Constraint("Coincident", 27, 2, 28, 1),
    Sketcher.Constraint("Coincident", 28, 2, 29, 1),
    Sketcher.Constraint("Coincident", 29, 2, 26, 1),
    Sketcher.Constraint("Vertical", 1),
    Sketcher.Constraint("Horizontal", 2),
    Sketcher.Constraint("Vertical", 3),
    Sketcher.Constraint("Vertical", 4),
    Sketcher.Constraint("Horizontal", 5),
    Sketcher.Constraint("Vertical", 6),
    Sketcher.Constraint("Horizontal", 7),
    Sketcher.Constraint("Vertical", 8),
    Sketcher.Constraint("Horizontal", 9),
    Sketcher.Constraint("Vertical", 10),
    Sketcher.Constraint("Horizontal", 11),
    Sketcher.Constraint("Horizontal", 12),
    Sketcher.Constraint("Vertical", 14),
    Sketcher.Constraint("Horizontal", 16),
    Sketcher.Constraint("Vertical", 17),
    Sketcher.Constraint("Horizontal", 18),
    Sketcher.Constraint("Vertical", 19),
    Sketcher.Constraint("Vertical", 21),
    Sketcher.Constraint("Horizontal", 22),
    Sketcher.Constraint("Vertical", 24),
    Sketcher.Constraint("Horizontal", 25),
    Sketcher.Constraint("Horizontal", 26),
    Sketcher.Constraint("Horizontal", 28),
    Sketcher.Constraint("Vertical", 29),
    Sketcher.Constraint("Coincident", 0, 3, -1, 1),
    Sketcher.Constraint("Coincident", 13, 3, -1, 1),
    Sketcher.Constraint("Coincident", 15, 3, -1, 1),
    Sketcher.Constraint("Coincident", 20, 3, -1, 1),
    Sketcher.Constraint("Coincident", 23, 3, -1, 1),
    Sketcher.Constraint("Coincident", 27, 3, -1, 1),
    Sketcher.Constraint("Equal", 0, 13),
    Sketcher.Constraint("Equal", 13, 15),
    Sketcher.Constraint("Equal", 15, 20),
    Sketcher.Constraint("Equal", 20, 23),
    Sketcher.Constraint("Equal", 23, 27),
    Sketcher.Constraint("Symmetric", 6, 2, 8, 2, -1, 1),
    Sketcher.Constraint("Symmetric", 4, 2, 10, 2, -1, 1),
    Sketcher.Constraint("Symmetric", 1, 2, 21, 2, -1, 1),
    Sketcher.Constraint("Symmetric", 14, 2, 24, 2, -1, 1),
    Sketcher.Constraint("Symmetric", 16, 2, 28, 2, -1, 1),
    Sketcher.Constraint("Horizontal", 2, 2, 12, 2),
    Sketcher.Constraint("Horizontal", 5, 2, 15, 2),
    Sketcher.Constraint("Horizontal", 7, 2, 17, 2),
    Sketcher.Constraint("Horizontal", 9, 2, 26, 2),
    Sketcher.Constraint("Vertical", 1, 2, 8, 2),
    Sketcher.Constraint("Vertical", 3, 2, 9, 2),
    Sketcher.Constraint("Vertical", 7, 2, 19, 2),
    Sketcher.Constraint("Vertical", 17, 2, 23, 2),
    Sketcher.Constraint("Equal", 26, 1),
    Sketcher.Constraint("Equal", 28, 3),
    Sketcher.Constraint("Equal", 22, 4),
    Sketcher.Constraint("Radius", 0, Q("17 mm")),
    Sketcher.Constraint("DistanceX", 2, 1, 2, 2, Q("7.7 mm")),
    Sketcher.Constraint("DistanceX", 2, 2, 6, 2, Q("8 mm")),
    Sketcher.Constraint("DistanceY", 5, 2, 12, 2, Q("8 mm")),
])
sketch2.setExpression("Constraints[81]", "Params.sketch2_radius")
sketch2.setExpression("Constraints[82]", "Params.sketch2_width")
pad2 = body.newObject("PartDesign::Pad", "Pad001")
pad2.Profile = sketch2
pad2.setExpression("Length", "Params.pad2_length")
pad2.Reversed = True

sketch3 = body.newObject("Sketcher::SketchObject", "Sketch002")
sketch3.AttachmentSupport = (doc.getObject("XY_Plane"), [""])
sketch3.MapMode = "FlatFace"
sketch3.AttachmentOffset = App.Placement(V(0, 0, 10.1), App.Rotation())
sketch3.addGeometry([
    Part.Circle(V(0, 0, 0), V(0, 0, 1), 35),
    Part.Circle(V(0, 0, 0), V(0, 0, 1), 18),
], False)
sketch3.addConstraint([
    Sketcher.Constraint("Coincident", 0, 3, -1, 1),
    Sketcher.Constraint("Coincident", 1, 3, -1, 1),
    Sketcher.Constraint("Diameter", 0, Q("70 mm")),
    Sketcher.Constraint("Diameter", 1, Q("36 mm")),
])
sketch3.setExpression("Constraints[2]", "Params.sketch3_diameter")
sketch3.setExpression("Constraints[3]", "Params.sketch3_diameter2")
pad3 = body.newObject("PartDesign::Pad", "Pad002")
pad3.Profile = sketch3
pad3.setExpression("Length", "Params.pad3_length")
pad3.Reversed = True

sketch4 = body.newObject("Sketcher::SketchObject", "Sketch003")
sketch4.AttachmentSupport = (doc.getObject("XY_Plane"), [""])
sketch4.MapMode = "FlatFace"
sketch4.AttachmentOffset = App.Placement(V(0, 0, 9.1), App.Rotation())
sketch4.addGeometry([
    Part.Circle(V(0, 29, 0), V(0, 0, 1), 2.9),
    Part.Circle(V(-25.114737, -14.5, 0), V(0, 0, 1), 2.9),
    Part.Circle(V(25.114737, -14.5, 0), V(0, 0, 1), 2.9),
], False)
sketch4.addConstraint([
    Sketcher.Constraint("Equal", 0, 1),
    Sketcher.Constraint("Equal", 1, 2),
    Sketcher.Constraint("Symmetric", 1, 3, 2, 3, -2),
    Sketcher.Constraint("PointOnObject", 0, 3, -2),
    Sketcher.Constraint("Diameter", 0, Q("5.8 mm")),
    Sketcher.Constraint("DistanceY", -1, 1, 0, 3, Q("29 mm")),
    Sketcher.Constraint("DistanceY", 1, 3, -1, 1, Q("14.5 mm")),
    Sketcher.Constraint("DistanceX", 1, 3, -1, 1, Q("25.114737 mm")),
])
sketch4.setExpression("Constraints[4]", "Params.sketch4_diameter")
pad4 = body.newObject("PartDesign::Pad", "Pad003")
pad4.Profile = sketch4
pad4.setExpression("Length", "Params.pad4_length")

sketch5 = body.newObject("Sketcher::SketchObject", "Sketch004")
sketch5.AttachmentSupport = (doc.getObject("XY_Plane"), [""])
sketch5.MapMode = "FlatFace"
sketch5.AttachmentOffset = App.Placement(V(0, 0, 9.1), App.Rotation())
sketch5.addGeometry(Part.Circle(V(0, 0, 0), V(0, 0, 1), 59.131366), False)
add_polygon(sketch5, [(36.373067, -21), (0, 42), (-36.373067, -21)])
sketch5.addConstraint([
    Sketcher.Constraint("Horizontal", 3),
    Sketcher.Constraint("Coincident", 0, 3, -1, 1),
    Sketcher.Constraint("PointOnObject", 1, 2, -2),
    Sketcher.Constraint("Equal", 1, 2),
    Sketcher.Constraint("Angle", 1, Q("120 deg")),
    Sketcher.Constraint("DistanceY", -1, 1, 1, 2, Q("42 mm")),
    Sketcher.Constraint("DistanceY", 2, 2, -1, 1, Q("21 mm")),
    Sketcher.Constraint("Diameter", 0, Q("118.262731 mm")),
])
pocket1 = body.newObject("PartDesign::Pocket", "Pocket")
pocket1.Profile = sketch5
pocket1.Type = "ThroughAll"
pocket1.Midplane = True
doc.recompute()

fillet = body.newObject("PartDesign::Fillet", "Fillet")
fillet.Base = (pocket1, edges_at(pocket1, [
    (-4.187, 34.749, 9.6),
    (-32.187, -13.749, 9.6),
    (-28, -21, 9.6),
    (28, -21, 9.6),
    (32.187, -13.749, 9.6),
    (4.187, 34.749, 9.6),
]))
fillet.setExpression("Radius", "Params.fillet_radius")

doc.recompute()
